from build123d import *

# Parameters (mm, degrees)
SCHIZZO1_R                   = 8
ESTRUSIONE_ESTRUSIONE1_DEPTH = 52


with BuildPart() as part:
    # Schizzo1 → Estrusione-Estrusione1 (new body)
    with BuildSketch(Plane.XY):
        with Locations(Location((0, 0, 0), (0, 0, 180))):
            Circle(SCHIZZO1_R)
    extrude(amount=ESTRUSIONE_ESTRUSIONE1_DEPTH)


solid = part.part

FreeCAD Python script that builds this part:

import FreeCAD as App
import Part
import Sketcher

V = App.Vector
Q = App.Units.Quantity

doc = App.newDocument("Part")
body = doc.addObject("PartDesign::Body", "Body")

sketch1 = doc.addObject("Sketcher::SketchObject", "Sketch")
body.addObject(sketch1)
sketch1.AttachmentSupport = (doc.XY_Plane, [""])
sketch1.MapMode = "FlatFace"
sketch1.addGeometry(Part.Circle(V(0, 0, 0), V(0, 0, 1), 8), False)
sketch1.addConstraint(Sketcher.Constraint("Coincident", 0, 3, -1, 1))
sketch1.addConstraint(Sketcher.Constraint("Diameter", 0, Q("16 mm")))
pad1 = doc.addObject("PartDesign::Pad", "Pad")
body.addObject(pad1)
pad1.Profile = sketch1
pad1.Length = 52

doc.recompute()
